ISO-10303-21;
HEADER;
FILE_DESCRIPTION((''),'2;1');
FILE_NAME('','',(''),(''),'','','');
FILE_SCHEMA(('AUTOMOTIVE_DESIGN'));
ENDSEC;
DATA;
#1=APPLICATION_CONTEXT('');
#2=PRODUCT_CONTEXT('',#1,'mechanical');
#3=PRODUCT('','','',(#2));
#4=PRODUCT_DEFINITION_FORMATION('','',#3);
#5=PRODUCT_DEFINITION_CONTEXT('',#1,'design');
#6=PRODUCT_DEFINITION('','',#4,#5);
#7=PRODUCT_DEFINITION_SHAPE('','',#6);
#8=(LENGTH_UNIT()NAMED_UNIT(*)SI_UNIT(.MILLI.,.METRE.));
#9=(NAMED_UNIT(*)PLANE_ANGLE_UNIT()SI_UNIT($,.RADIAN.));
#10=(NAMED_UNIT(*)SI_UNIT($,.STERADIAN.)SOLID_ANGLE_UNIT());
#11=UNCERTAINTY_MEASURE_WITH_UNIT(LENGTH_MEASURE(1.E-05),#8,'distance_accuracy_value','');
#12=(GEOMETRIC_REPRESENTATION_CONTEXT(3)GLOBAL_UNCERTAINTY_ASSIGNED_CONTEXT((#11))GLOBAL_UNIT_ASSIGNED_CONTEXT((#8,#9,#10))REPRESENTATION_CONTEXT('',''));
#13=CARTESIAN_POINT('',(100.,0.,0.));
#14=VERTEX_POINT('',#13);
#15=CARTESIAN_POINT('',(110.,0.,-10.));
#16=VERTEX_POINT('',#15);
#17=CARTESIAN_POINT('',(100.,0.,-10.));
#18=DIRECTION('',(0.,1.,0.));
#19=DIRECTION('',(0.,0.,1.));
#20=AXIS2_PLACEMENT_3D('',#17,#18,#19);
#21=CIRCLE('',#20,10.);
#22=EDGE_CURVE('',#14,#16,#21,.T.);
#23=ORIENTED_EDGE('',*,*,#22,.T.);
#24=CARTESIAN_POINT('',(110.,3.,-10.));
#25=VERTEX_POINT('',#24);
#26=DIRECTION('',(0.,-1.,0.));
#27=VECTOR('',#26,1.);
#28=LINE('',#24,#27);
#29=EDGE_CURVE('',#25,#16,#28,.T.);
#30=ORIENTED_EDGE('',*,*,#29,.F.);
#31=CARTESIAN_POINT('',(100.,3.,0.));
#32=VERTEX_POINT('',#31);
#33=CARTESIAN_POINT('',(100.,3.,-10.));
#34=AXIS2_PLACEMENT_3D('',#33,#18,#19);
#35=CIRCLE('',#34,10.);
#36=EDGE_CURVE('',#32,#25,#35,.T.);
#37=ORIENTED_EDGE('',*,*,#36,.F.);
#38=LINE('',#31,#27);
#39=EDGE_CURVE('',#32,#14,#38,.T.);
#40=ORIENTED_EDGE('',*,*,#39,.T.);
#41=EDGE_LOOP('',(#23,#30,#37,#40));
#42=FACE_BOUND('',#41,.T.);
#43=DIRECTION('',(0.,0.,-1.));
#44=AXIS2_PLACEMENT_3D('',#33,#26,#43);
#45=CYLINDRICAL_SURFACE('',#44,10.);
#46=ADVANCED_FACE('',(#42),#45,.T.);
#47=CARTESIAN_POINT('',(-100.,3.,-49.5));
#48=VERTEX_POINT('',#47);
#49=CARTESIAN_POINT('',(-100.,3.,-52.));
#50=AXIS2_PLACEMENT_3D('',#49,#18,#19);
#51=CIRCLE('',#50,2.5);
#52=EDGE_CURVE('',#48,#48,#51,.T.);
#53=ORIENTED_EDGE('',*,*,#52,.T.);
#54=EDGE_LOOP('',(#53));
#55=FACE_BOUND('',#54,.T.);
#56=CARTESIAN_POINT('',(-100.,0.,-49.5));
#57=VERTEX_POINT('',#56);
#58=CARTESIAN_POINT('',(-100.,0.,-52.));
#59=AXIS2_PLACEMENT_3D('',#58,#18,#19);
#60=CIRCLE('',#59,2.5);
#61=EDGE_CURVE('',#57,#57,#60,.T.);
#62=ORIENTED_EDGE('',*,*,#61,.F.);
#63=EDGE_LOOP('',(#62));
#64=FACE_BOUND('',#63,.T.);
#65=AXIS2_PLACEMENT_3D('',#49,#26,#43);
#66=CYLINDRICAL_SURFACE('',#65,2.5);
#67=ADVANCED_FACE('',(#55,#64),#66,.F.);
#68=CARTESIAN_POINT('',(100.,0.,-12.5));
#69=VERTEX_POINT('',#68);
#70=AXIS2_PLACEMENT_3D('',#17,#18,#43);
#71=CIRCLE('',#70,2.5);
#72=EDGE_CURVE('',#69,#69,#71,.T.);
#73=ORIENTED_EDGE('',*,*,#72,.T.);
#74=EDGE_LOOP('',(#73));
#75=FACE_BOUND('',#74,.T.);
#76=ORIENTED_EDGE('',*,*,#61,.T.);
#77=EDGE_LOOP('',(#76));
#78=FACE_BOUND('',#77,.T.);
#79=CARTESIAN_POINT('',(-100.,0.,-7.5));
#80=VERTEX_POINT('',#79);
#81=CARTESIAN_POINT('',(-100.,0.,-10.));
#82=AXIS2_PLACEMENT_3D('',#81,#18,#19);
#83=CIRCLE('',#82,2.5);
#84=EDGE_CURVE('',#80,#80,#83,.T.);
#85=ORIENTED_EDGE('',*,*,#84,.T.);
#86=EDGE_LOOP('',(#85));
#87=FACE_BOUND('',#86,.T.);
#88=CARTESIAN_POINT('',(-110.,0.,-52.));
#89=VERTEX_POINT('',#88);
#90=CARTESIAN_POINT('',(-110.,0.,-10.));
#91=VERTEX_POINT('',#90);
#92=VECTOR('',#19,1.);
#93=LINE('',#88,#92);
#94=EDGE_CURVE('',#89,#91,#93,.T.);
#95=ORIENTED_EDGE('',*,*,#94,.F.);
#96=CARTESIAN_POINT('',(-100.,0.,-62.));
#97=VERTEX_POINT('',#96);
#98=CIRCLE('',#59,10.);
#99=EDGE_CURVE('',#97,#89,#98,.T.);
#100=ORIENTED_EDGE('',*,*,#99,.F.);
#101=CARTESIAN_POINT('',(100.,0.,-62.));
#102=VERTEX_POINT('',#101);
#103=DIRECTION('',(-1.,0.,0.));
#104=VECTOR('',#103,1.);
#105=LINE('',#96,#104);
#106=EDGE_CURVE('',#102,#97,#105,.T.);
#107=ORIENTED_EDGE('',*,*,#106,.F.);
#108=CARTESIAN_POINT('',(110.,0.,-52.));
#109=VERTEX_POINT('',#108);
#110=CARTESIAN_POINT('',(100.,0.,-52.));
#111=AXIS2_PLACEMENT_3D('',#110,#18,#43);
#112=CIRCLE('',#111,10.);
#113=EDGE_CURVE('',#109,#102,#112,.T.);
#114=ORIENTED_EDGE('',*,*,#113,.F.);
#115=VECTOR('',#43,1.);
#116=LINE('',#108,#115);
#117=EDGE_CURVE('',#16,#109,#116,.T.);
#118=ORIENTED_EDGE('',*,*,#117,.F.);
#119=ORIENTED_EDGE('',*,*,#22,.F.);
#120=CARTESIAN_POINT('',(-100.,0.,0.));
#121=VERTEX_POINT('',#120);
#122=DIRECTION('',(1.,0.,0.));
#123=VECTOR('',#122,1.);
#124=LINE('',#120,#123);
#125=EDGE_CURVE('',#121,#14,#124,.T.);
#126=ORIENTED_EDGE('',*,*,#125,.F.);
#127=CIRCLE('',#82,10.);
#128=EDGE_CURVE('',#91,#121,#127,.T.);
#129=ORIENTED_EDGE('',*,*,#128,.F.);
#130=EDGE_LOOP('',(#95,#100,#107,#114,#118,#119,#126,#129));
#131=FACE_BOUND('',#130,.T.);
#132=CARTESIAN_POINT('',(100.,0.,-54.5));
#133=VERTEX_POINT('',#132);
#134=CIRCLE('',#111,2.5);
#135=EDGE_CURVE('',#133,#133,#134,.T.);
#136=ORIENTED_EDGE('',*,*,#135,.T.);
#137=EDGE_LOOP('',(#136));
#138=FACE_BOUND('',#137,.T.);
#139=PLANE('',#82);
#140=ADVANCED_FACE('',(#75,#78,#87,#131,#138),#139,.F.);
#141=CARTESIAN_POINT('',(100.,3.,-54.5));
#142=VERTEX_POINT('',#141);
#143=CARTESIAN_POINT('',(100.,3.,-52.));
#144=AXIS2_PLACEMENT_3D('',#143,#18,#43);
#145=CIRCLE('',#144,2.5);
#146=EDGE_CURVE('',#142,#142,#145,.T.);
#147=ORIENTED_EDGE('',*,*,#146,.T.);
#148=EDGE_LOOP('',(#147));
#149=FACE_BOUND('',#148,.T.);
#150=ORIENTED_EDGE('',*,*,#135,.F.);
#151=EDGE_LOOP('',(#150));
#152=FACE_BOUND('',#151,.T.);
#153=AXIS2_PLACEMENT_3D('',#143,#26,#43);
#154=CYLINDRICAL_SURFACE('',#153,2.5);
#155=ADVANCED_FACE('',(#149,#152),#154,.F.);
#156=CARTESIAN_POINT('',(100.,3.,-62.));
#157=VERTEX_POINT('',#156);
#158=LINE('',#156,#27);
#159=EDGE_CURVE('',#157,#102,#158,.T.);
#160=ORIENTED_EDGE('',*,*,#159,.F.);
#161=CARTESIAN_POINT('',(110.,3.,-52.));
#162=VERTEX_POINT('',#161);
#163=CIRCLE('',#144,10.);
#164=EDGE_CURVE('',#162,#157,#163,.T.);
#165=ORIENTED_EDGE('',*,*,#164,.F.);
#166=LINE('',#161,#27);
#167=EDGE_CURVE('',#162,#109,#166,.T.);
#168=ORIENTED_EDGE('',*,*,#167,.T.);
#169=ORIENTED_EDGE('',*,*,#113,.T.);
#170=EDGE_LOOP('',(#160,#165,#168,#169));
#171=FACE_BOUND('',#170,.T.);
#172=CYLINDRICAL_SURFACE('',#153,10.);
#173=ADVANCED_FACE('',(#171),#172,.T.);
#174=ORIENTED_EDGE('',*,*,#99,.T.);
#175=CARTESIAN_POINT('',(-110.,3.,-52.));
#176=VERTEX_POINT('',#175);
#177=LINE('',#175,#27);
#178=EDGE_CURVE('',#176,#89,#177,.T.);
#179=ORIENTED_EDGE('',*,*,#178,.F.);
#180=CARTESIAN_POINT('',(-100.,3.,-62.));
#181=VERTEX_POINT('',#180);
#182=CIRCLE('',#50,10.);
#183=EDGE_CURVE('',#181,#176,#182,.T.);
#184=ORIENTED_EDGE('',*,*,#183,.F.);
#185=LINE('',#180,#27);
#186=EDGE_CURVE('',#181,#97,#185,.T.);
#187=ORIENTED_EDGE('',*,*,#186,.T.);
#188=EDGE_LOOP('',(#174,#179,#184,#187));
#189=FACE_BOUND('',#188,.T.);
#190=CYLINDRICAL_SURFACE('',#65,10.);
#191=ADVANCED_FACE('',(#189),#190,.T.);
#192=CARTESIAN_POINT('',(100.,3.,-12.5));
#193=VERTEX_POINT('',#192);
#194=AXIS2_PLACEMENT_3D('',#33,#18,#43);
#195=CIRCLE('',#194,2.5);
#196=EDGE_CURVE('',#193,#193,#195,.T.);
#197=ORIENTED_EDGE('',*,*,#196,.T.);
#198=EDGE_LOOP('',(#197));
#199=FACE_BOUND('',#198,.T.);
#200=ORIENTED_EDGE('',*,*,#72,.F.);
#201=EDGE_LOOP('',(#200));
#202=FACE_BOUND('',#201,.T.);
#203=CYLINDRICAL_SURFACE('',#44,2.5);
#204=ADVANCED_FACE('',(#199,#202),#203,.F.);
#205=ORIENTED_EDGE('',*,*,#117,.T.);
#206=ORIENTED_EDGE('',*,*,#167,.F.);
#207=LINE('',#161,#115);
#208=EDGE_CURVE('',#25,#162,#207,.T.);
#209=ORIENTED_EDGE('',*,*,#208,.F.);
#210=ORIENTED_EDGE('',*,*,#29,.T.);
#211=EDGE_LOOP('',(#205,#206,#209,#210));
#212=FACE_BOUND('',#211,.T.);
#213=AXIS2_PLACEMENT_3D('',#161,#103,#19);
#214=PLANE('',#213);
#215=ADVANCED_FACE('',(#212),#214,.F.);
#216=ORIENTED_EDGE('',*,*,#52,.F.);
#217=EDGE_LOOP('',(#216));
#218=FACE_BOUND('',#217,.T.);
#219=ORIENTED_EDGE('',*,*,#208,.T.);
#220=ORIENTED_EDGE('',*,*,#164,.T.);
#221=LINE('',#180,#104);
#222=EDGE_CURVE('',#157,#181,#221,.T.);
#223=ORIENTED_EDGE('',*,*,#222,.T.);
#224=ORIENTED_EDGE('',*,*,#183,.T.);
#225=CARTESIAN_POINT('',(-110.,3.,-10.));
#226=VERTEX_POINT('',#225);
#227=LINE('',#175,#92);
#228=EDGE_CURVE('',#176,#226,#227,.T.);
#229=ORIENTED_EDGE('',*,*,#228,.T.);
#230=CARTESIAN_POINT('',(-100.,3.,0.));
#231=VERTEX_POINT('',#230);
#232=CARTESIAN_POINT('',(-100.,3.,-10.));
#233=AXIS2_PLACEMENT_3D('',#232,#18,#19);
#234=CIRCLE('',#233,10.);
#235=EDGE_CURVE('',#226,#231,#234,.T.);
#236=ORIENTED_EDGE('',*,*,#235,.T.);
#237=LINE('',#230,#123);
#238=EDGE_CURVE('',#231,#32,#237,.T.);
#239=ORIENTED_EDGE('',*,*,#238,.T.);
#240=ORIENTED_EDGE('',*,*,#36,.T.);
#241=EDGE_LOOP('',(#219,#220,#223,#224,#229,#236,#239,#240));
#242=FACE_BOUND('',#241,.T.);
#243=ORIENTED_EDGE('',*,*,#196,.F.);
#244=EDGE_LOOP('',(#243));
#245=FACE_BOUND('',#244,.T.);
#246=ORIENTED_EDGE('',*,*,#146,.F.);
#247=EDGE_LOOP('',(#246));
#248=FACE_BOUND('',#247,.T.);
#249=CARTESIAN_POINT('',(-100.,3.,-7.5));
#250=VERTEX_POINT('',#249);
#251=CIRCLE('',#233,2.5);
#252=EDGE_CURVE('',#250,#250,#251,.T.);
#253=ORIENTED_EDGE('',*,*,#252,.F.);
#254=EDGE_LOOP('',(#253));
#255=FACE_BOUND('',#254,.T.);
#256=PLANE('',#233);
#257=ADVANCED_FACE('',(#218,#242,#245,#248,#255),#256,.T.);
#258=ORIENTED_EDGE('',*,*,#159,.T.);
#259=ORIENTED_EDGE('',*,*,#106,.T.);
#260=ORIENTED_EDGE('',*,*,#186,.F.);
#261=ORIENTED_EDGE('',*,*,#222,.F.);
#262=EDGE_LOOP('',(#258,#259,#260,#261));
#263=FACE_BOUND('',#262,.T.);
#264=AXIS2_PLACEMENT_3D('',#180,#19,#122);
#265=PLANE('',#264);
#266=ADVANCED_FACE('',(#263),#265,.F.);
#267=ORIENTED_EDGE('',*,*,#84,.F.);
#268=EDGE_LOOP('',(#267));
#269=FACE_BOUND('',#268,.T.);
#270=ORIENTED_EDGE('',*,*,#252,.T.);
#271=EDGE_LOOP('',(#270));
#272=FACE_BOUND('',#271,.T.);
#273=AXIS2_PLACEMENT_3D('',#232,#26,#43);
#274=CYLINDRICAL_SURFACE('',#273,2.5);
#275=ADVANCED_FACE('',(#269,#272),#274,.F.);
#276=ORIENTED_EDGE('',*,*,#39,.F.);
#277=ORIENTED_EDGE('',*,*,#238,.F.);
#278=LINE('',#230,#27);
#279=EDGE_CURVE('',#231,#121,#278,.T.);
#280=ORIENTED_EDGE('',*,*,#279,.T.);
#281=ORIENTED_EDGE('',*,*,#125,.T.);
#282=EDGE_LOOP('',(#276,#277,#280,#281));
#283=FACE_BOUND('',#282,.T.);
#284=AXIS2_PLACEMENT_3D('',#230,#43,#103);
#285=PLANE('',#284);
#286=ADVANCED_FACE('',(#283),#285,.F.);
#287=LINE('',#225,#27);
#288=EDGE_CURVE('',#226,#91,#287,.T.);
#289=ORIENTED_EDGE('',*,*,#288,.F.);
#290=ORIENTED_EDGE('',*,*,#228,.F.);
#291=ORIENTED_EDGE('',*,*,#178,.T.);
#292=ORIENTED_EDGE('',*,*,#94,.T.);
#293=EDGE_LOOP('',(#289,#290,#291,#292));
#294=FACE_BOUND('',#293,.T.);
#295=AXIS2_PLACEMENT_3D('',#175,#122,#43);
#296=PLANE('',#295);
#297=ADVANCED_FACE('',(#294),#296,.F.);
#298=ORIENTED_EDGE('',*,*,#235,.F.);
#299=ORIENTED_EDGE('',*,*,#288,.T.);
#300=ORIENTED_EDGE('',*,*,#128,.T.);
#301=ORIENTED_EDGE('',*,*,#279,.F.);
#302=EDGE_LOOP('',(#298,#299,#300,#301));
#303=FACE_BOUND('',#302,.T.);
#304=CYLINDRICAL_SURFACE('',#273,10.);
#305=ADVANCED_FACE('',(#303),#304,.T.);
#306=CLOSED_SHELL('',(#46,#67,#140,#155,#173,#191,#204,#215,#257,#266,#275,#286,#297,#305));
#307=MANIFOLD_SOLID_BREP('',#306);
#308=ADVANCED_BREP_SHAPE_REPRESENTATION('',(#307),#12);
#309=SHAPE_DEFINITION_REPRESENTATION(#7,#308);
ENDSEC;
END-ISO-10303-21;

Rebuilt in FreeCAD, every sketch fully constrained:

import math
import FreeCAD as App
import Part
import Sketcher

V = App.Vector

doc = App.newDocument("Part")
params = doc.addObject("Spreadsheet::Sheet", "Params")
for row, (alias, value) in enumerate([
    ("sketch1_diameter", "5 mm"),
    ("sketch1_radius", "10 mm"),
    ("sketch1_width", "200 mm"),
    ("sketch1_height", "42 mm"),
    ("pad1_length", "3 mm"),
], start=1):
    params.set(f"A{row}", alias)
    params.set(f"B{row}", "=" + value)
    params.setAlias(f"B{row}", alias)

body = doc.addObject("PartDesign::Body", "Body")

sketch1 = doc.addObject("Sketcher::SketchObject", "Sketch")
body.addObject(sketch1)
sketch1.AttachmentSupport = (doc.XZ_Plane, [""])
sketch1.MapMode = "FlatFace"
sketch1.addGeometry([
    Part.LineSegment(V(100, -62, 0), V(-100, -62, 0)),
    Part.ArcOfCircle(Part.Circle(V(-100, -52, 0), V(0, 0, 1), 10), math.radians(180), math.radians(270)),
    Part.LineSegment(V(-110, -52, 0), V(-110, -10, 0)),
    Part.ArcOfCircle(Part.Circle(V(-100, -10, 0), V(0, 0, 1), 10), math.radians(90), math.radians(180)),
    Part.LineSegment(V(-100, 0, 0), V(100, 0, 0)),
    Part.ArcOfCircle(Part.Circle(V(100, -10, 0), V(0, 0, 1), 10), math.radians(0), math.radians(90)),
    Part.LineSegment(V(110, -10, 0), V(110, -52, 0)),
    Part.ArcOfCircle(Part.Circle(V(100, -52, 0), V(0, 0, 1), 10), math.radians(-90), math.radians(0)),
    Part.Circle(V(100, -10, 0), V(0, 0, 1), 2.5),
    Part.Circle(V(-100, -10, 0), V(0, 0, 1), 2.5),
    Part.Circle(V(100, -52, 0), V(0, 0, 1), 2.5),
    Part.Circle(V(-100, -52, 0), V(0, 0, 1), 2.5),
], False)
sketch1.addConstraint([
    Sketcher.Constraint("Tangent", 0, 2, 1, 2),
    Sketcher.Constraint("Tangent", 1, 1, 2, 1),
    Sketcher.Constraint("Tangent", 2, 2, 3, 2),
    Sketcher.Constraint("Tangent", 3, 1, 4, 1),
    Sketcher.Constraint("Tangent", 4, 2, 5, 2),
    Sketcher.Constraint("Tangent", 5, 1, 6, 1),
    Sketcher.Constraint("Tangent", 6, 2, 7, 2),
    Sketcher.Constraint("Tangent", 7, 1, 0, 1),
    Sketcher.Constraint("Horizontal", 0),
    Sketcher.Constraint("Vertical", 2),
    Sketcher.Constraint("Horizontal", 4),
    Sketcher.Constraint("Vertical", 6),
    Sketcher.Constraint("Coincident", 8, 3, 5, 3),
    Sketcher.Constraint("Coincident", 9, 3, 3, 3),
    Sketcher.Constraint("Coincident", 10, 3, 7, 3),
    Sketcher.Constraint("Coincident", 11, 3, 1, 3),
    Sketcher.Constraint("Equal", 1, 3),
    Sketcher.Constraint("Equal", 3, 5),
    Sketcher.Constraint("Equal", 5, 7),
    Sketcher.Constraint("Equal", 8, 9),
    Sketcher.Constraint("Equal", 9, 10),
    Sketcher.Constraint("Equal", 10, 11),
    Sketcher.Constraint("Symmetric", 3, 1, 4, 2, -1, 1),
    Sketcher.Constraint("Diameter", 8, 5.0),
    Sketcher.Constraint("Radius", 1, 10.0),
    Sketcher.Constraint("DistanceX", 0, 2, 0, 1, 200.0),
    Sketcher.Constraint("DistanceY", 2, 1, 2, 2, 42.0),
])
sketch1.setExpression("Constraints[23]", "Params.sketch1_diameter")
sketch1.setExpression("Constraints[24]", "Params.sketch1_radius")
sketch1.setExpression("Constraints[25]", "Params.sketch1_width")
sketch1.setExpression("Constraints[26]", "Params.sketch1_height")
pad1 = doc.addObject("PartDesign::Pad", "Pad")
body.addObject(pad1)
pad1.Profile = sketch1
pad1.setExpression("Length", "Params.pad1_length")
pad1.Reversed = True

doc.recompute()
